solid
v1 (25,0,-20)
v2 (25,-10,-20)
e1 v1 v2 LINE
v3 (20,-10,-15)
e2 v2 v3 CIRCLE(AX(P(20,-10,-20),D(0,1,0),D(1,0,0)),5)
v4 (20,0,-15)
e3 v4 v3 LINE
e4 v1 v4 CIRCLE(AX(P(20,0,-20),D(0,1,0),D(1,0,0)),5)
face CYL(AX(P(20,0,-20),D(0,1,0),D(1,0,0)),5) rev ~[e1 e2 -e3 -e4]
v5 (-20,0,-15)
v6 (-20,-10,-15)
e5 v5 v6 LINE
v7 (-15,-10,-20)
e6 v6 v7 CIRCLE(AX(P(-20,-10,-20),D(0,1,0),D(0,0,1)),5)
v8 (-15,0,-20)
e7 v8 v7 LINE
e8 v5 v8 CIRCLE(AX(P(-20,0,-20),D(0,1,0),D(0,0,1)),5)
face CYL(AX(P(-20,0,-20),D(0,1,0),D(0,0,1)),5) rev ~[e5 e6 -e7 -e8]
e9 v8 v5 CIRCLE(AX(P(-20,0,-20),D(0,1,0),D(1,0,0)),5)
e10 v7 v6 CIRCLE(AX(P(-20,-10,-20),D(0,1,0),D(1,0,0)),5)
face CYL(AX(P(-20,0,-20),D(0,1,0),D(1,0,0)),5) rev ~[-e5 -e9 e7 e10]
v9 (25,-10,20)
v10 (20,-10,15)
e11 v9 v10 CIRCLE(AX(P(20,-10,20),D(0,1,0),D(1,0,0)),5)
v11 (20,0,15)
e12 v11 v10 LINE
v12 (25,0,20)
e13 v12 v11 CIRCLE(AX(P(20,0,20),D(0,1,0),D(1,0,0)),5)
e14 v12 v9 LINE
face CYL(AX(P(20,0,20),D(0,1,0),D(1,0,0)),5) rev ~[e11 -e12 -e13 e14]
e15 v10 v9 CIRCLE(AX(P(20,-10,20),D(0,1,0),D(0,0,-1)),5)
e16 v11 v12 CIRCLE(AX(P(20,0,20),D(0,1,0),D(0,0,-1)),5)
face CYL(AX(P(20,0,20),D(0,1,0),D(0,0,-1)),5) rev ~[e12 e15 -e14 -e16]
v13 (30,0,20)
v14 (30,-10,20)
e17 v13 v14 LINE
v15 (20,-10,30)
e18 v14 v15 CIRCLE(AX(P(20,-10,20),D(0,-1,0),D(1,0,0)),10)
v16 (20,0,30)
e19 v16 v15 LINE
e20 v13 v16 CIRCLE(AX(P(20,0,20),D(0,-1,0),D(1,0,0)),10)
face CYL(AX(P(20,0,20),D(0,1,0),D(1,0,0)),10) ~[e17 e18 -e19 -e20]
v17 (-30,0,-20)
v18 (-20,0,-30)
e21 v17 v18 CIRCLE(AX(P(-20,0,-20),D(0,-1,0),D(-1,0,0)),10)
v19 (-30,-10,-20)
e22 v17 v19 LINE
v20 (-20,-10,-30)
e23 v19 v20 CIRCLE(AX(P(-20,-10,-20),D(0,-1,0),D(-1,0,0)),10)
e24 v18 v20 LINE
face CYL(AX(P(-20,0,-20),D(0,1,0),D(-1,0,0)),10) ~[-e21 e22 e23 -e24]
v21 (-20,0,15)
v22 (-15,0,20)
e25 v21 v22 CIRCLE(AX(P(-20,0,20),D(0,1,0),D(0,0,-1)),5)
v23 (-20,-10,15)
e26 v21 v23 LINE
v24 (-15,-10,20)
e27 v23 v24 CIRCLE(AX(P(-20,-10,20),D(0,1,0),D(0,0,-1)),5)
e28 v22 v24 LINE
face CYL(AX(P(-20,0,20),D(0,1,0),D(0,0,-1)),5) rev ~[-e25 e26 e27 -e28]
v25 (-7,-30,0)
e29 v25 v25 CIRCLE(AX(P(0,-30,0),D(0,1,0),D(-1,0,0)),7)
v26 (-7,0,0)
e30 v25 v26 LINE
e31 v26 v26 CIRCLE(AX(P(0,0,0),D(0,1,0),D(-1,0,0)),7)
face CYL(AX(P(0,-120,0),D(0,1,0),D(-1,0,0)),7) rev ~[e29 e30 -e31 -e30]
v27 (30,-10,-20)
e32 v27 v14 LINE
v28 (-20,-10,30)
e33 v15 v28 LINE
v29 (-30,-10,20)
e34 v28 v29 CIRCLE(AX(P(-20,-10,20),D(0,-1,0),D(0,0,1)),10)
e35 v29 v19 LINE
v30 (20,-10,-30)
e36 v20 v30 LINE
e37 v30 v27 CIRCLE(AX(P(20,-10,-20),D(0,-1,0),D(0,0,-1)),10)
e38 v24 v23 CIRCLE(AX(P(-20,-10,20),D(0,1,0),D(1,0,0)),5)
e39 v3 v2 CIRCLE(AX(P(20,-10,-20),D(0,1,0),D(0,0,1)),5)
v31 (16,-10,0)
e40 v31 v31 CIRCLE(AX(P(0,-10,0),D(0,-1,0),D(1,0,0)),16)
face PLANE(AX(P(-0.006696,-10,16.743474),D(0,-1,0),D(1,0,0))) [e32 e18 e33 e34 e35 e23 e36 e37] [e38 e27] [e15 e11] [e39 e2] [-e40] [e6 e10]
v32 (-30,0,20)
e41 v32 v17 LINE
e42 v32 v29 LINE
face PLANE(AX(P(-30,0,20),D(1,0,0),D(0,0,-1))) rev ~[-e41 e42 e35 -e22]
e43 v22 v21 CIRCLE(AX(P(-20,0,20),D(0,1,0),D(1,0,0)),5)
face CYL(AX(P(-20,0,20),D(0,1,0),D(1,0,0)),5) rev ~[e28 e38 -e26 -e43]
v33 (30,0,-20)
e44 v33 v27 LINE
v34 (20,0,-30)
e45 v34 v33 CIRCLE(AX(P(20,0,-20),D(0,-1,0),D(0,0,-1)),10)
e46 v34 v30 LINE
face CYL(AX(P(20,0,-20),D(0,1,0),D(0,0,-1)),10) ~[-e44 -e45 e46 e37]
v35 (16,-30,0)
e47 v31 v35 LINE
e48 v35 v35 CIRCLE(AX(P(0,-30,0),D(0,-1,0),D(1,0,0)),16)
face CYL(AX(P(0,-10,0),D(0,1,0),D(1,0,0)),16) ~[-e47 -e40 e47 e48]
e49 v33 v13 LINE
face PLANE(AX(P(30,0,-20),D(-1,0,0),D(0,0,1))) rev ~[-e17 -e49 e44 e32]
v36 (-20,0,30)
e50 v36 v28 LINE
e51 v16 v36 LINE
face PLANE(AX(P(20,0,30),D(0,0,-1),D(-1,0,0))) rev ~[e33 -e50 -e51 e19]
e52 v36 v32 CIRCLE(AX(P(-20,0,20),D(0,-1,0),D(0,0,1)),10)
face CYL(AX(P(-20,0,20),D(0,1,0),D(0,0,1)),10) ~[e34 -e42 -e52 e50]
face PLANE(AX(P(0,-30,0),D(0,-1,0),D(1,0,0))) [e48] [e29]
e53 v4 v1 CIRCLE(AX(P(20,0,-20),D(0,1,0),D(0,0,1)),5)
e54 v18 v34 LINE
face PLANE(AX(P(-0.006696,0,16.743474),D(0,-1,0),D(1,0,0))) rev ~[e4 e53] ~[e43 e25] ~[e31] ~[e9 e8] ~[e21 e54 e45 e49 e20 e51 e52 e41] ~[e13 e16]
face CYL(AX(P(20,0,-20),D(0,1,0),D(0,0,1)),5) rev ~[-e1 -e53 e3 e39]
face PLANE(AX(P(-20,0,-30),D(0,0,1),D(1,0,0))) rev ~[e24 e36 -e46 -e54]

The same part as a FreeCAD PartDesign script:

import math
import FreeCAD as App
import Part
import Sketcher

V = App.Vector
Q = App.Units.Quantity

doc = App.newDocument("Part")
body = doc.addObject("PartDesign::Body", "Body")

# Sketch on XZ plane
sketch1 = doc.addObject("Sketcher::SketchObject", "Sketch")
body.addObject(sketch1)
sketch1.AttachmentSupport = (doc.XZ_Plane, [""])
sketch1.MapMode = "FlatFace"
sketch1.addGeometry([
    Part.LineSegment(V(20, 30, 0), V(-20, 30, 0)),  # 0
    Part.ArcOfCircle(Part.Circle(V(-20, 20, 0), V(0, 0, 1), 10), math.radians(90), math.radians(180)),  # 1
    Part.LineSegment(V(-30, 20, 0), V(-30, -20, 0)),  # 2
    Part.ArcOfCircle(Part.Circle(V(-20, -20, 0), V(0, 0, 1), 10), math.radians(180), math.radians(270)),  # 3
    Part.LineSegment(V(-20, -30, 0), V(20, -30, 0)),  # 4
    Part.ArcOfCircle(Part.Circle(V(20, -20, 0), V(0, 0, 1), 10), math.radians(-90), math.radians(0)),  # 5
    Part.LineSegment(V(30, -20, 0), V(30, 20, 0)),  # 6
    Part.ArcOfCircle(Part.Circle(V(20, 20, 0), V(0, 0, 1), 10), math.radians(0), math.radians(90)),  # 7
    Part.ArcOfCircle(Part.Circle(V(-20, -20, 0), V(0, 0, 1), 5), math.radians(0), math.radians(90)),  # 8
    Part.ArcOfCircle(Part.Circle(V(-20, -20, 0), V(0, 0, 1), 5), math.radians(90), math.radians(360)),  # 9
    Part.ArcOfCircle(Part.Circle(V(20, -20, 0), V(0, 0, 1), 5), math.radians(0), math.radians(90)),  # 10
    Part.ArcOfCircle(Part.Circle(V(20, -20, 0), V(0, 0, 1), 5), math.radians(90), math.radians(360)),  # 11
    Part.ArcOfCircle(Part.Circle(V(-20, 20, 0), V(0, 0, 1), 5), math.radians(0), math.radians(270)),  # 12
    Part.ArcOfCircle(Part.Circle(V(-20, 20, 0), V(0, 0, 1), 5), math.radians(-90), math.radians(0)),  # 13
    Part.ArcOfCircle(Part.Circle(V(20, 20, 0), V(0, 0, 1), 5), math.radians(0), math.radians(270)),  # 14
    Part.ArcOfCircle(Part.Circle(V(20, 20, 0), V(0, 0, 1), 5), math.radians(-90), math.radians(0)),  # 15
], False)
sketch1.addConstraint([
    Sketcher.Constraint("Tangent", 0, 2, 1, 1),
    Sketcher.Constraint("Tangent", 1, 2, 2, 1),
    Sketcher.Constraint("Tangent", 2, 2, 3, 1),
    Sketcher.Constraint("Tangent", 3, 2, 4, 1),
    Sketcher.Constraint("Tangent", 4, 2, 5, 1),
    Sketcher.Constraint("Tangent", 5, 2, 6, 1),
    Sketcher.Constraint("Tangent", 6, 2, 7, 1),
    Sketcher.Constraint("Tangent", 7, 2, 0, 1),
    Sketcher.Constraint("Tangent", 8, 1, 9, 2),
    Sketcher.Constraint("Coincident", 9, 1, 8, 2),
    Sketcher.Constraint("Tangent", 10, 1, 11, 2),
    Sketcher.Constraint("Coincident", 11, 1, 10, 2),
    Sketcher.Constraint("Tangent", 12, 1, 13, 2),
    Sketcher.Constraint("Coincident", 13, 1, 12, 2),
    Sketcher.Constraint("Tangent", 14, 1, 15, 2),
    Sketcher.Constraint("Coincident", 15, 1, 14, 2),
    Sketcher.Constraint("Horizontal", 0),
    Sketcher.Constraint("Vertical", 2),
    Sketcher.Constraint("Horizontal", 4),
    Sketcher.Constraint("Vertical", 6),
    Sketcher.Constraint("Coincident", 8, 3, 3, 3),
    Sketcher.Constraint("Coincident", 10, 3, 5, 3),
    Sketcher.Constraint("Coincident", 12, 3, 1, 3),
    Sketcher.Constraint("Coincident", 14, 3, 7, 3),
    Sketcher.Constraint("Equal", 1, 3),
    Sketcher.Constraint("Equal", 3, 5),
    Sketcher.Constraint("Equal", 5, 7),
    Sketcher.Constraint("Equal", 9, 10),
    Sketcher.Constraint("Equal", 11, 12),
    Sketcher.Constraint("Equal", 13, 14),
    Sketcher.Constraint("Symmetric", 1, 3, 5, 3, -1, 1),
    Sketcher.Constraint("Horizontal", 5, 2, 8, 1),
    Sketcher.Constraint("Horizontal", 8, 1, 10, 1),
    Sketcher.Constraint("Horizontal", 6, 2, 12, 1),
    Sketcher.Constraint("Horizontal", 12, 1, 14, 1),
    Sketcher.Constraint("Vertical", 3, 2, 9, 1),
    Sketcher.Constraint("Vertical", 7, 2, 11, 1),
    Sketcher.Constraint("Vertical", 9, 1, 13, 1),
    Sketcher.Constraint("Vertical", 11, 1, 15, 1),
    Sketcher.Constraint("Equal", 4, 2),
    Sketcher.Constraint("Radius", 1, Q("10 mm")),
    Sketcher.Constraint("Radius", 8, Q("5 mm")),
    Sketcher.Constraint("DistanceX", 0, 2, 0, 1, Q("40 mm")),
])
pad1 = doc.addObject("PartDesign::Pad", "Pad")
body.addObject(pad1)
pad1.Profile = sketch1
pad1.Length = 10

# Sketch on XZ plane
sketch2 = doc.addObject("Sketcher::SketchObject", "Sketch001")
body.addObject(sketch2)
sketch2.AttachmentSupport = (doc.XZ_Plane, [""])
sketch2.MapMode = "FlatFace"
sketch2.AttachmentOffset = App.Placement(V(0, 0, 10), App.Rotation())
sketch2.addGeometry(Part.Circle(V(0, 0, 0), V(0, 0, 1), 16), False)
sketch2.addConstraint([
    Sketcher.Constraint("Coincident", 0, 3, -1, 1),
    Sketcher.Constraint("Diameter", 0, Q("32 mm")),
])
pad2 = doc.addObject("PartDesign::Pad", "Pad001")
body.addObject(pad2)
pad2.Profile = sketch2
pad2.Length = 20

# Sketch on XZ plane
sketch3 = doc.addObject("Sketcher::SketchObject", "Sketch002")
body.addObject(sketch3)
sketch3.AttachmentSupport = (doc.XZ_Plane, [""])
sketch3.MapMode = "FlatFace"
sketch3.AttachmentOffset = App.Placement(V(0, 0, 30), App.Rotation())
sketch3.addGeometry(Part.Circle(V(0, 0, 0), V(0, 0, 1), 7), False)
sketch3.addConstraint([
    Sketcher.Constraint("Coincident", 0, 3, -1, 1),
    Sketcher.Constraint("Diameter", 0, Q("14 mm")),
])
doc.recompute()
hole = doc.addObject("PartDesign::Hole", "Hole")
body.addObject(hole)
hole.Profile = sketch3
hole.ThreadType = "None"
hole.Diameter = 14
hole.DepthType = "ThroughAll"

doc.recompute()
